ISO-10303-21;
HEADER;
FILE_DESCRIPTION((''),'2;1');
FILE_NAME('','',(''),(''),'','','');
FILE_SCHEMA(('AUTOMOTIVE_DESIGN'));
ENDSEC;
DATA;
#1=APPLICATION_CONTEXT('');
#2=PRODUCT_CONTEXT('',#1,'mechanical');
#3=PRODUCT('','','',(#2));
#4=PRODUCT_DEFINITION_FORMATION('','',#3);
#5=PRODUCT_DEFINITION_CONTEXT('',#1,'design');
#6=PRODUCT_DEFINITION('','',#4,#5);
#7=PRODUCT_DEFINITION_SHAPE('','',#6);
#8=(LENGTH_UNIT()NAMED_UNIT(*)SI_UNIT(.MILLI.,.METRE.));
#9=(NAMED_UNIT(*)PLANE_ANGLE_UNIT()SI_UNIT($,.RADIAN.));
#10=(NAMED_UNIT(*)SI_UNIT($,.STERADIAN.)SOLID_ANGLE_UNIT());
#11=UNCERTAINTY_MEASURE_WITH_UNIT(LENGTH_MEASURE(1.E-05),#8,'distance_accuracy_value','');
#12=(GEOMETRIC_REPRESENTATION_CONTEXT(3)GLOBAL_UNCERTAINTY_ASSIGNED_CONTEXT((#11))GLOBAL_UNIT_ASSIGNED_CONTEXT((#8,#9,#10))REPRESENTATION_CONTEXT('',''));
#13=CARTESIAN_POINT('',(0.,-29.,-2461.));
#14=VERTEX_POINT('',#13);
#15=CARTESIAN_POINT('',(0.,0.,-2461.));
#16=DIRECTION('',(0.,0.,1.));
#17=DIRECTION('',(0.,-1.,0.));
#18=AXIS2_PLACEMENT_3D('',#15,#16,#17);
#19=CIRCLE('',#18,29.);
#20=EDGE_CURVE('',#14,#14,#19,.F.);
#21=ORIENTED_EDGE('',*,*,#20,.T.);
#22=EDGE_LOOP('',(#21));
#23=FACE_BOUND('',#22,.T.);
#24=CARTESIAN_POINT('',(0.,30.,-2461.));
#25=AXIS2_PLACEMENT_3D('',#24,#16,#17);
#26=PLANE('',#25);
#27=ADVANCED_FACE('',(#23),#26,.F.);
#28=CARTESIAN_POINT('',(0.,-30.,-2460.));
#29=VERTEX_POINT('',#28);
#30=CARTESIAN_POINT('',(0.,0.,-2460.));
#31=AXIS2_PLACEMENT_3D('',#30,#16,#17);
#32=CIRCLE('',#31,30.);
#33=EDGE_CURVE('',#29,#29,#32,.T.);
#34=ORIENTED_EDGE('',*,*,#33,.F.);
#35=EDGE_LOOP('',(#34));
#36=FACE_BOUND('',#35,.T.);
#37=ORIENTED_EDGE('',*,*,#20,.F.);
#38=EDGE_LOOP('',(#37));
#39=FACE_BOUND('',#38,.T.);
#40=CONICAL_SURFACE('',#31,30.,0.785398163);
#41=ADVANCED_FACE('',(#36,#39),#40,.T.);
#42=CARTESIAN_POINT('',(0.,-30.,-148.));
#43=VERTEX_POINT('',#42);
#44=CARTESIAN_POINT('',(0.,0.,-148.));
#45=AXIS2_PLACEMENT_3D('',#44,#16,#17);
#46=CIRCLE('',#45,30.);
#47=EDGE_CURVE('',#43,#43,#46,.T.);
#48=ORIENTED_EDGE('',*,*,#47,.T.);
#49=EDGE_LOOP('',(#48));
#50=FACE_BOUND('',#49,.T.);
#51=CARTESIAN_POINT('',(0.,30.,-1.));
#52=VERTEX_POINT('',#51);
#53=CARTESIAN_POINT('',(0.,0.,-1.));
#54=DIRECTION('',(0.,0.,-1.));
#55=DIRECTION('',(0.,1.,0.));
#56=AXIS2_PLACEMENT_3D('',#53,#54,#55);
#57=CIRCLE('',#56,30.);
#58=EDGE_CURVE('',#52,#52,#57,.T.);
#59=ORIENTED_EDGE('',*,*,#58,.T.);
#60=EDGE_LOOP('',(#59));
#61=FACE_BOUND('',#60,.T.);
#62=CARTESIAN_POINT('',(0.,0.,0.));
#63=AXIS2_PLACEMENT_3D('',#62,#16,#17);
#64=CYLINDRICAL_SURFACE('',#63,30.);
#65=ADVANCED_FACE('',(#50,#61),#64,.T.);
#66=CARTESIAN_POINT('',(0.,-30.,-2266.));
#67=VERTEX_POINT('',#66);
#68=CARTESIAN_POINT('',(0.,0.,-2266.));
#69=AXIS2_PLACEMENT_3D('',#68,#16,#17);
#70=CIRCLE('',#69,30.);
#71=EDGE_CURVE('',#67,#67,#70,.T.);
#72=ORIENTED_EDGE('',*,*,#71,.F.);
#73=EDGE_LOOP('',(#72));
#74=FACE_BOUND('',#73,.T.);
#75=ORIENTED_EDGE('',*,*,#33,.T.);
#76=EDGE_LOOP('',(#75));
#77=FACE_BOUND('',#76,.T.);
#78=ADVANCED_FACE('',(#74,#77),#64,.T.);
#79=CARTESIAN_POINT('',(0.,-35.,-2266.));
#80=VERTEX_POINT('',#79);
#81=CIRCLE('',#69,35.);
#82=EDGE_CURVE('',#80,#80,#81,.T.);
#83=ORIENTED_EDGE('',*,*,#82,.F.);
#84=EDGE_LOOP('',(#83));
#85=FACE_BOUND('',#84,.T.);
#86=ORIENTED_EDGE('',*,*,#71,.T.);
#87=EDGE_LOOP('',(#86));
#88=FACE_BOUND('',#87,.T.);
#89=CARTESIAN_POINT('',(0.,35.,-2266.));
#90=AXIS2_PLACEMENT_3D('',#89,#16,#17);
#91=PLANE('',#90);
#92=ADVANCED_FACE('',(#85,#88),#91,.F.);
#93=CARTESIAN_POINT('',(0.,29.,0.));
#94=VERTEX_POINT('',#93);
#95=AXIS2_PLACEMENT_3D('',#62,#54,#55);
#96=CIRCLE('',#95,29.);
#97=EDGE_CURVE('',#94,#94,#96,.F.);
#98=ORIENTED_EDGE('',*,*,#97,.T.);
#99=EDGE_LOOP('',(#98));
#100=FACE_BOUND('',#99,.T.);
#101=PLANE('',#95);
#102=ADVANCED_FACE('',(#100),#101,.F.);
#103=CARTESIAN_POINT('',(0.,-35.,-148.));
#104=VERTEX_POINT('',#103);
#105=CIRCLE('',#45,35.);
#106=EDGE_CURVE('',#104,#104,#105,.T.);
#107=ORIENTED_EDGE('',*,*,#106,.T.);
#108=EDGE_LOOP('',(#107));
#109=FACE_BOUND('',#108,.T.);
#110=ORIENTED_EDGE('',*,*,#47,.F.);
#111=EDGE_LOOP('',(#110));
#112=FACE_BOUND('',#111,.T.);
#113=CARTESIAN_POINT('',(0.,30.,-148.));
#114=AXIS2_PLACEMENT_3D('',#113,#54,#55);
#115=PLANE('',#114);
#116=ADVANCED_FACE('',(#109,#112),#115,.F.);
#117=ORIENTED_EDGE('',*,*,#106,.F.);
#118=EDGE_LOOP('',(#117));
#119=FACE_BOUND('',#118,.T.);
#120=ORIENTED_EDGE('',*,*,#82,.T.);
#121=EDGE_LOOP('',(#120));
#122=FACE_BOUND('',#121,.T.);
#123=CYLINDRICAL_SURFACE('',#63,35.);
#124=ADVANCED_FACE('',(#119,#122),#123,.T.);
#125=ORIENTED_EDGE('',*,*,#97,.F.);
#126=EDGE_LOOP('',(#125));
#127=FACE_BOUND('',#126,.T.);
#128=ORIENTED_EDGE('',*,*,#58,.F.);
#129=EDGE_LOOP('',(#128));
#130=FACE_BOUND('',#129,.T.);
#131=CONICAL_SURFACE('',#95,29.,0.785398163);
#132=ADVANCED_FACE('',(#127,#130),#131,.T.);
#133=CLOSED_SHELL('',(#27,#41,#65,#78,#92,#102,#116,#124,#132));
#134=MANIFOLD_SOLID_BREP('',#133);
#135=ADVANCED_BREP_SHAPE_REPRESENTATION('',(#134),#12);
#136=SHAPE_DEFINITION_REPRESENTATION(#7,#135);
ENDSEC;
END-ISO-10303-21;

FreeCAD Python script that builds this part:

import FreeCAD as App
import Part
import Sketcher
from FreeCAD import Vector
Q = App.Units.Quantity


def edges_at(feature, points):
    """Names of the edges that pass closest to the given points."""
    edges = feature.Shape.Edges
    near = lambda p: min(range(len(edges)), key=lambda i: edges[i].distToShape(Part.Vertex(*p))[0])
    return sorted({f"Edge{near(p) + 1}" for p in points})

doc = App.newDocument("Part")
body = doc.addObject("PartDesign::Body", "Body")

# Sketch on YZ plane
sketch1 = body.newObject("Sketcher::SketchObject", "Sketch")
sketch1.AttachmentSupport = (doc.getObject("YZ_Plane"), [""])
sketch1.MapMode = "FlatFace"
sketch1.addGeometry([
    Part.LineSegment(Vector(30, 0, 0), Vector(0, 0, 0)),  # 0
    Part.LineSegment(Vector(0, 0, 0), Vector(0, -2461, 0)),  # 1
    Part.LineSegment(Vector(0, -2461, 0), Vector(30, -2461, 0)),  # 2
    Part.LineSegment(Vector(30, -2461, 0), Vector(30, -2266, 0)),  # 3
    Part.LineSegment(Vector(30, -2266, 0), Vector(35, -2266, 0)),  # 4
    Part.LineSegment(Vector(35, -2266, 0), Vector(35, -148, 0)),  # 5
    Part.LineSegment(Vector(35, -148, 0), Vector(30, -148, 0)),  # 6
    Part.LineSegment(Vector(30, -148, 0), Vector(30, 0, 0)),  # 7
], False)
sketch1.addConstraint([
    Sketcher.Constraint("Coincident", 0, 2, 1, 1),
    Sketcher.Constraint("Coincident", 1, 2, 2, 1),
    Sketcher.Constraint("Coincident", 2, 2, 3, 1),
    Sketcher.Constraint("Coincident", 3, 2, 4, 1),
    Sketcher.Constraint("Coincident", 4, 2, 5, 1),
    Sketcher.Constraint("Coincident", 5, 2, 6, 1),
    Sketcher.Constraint("Coincident", 6, 2, 7, 1),
    Sketcher.Constraint("Coincident", 7, 2, 0, 1),
    Sketcher.Constraint("Horizontal", 0),
    Sketcher.Constraint("Vertical", 1),
    Sketcher.Constraint("Horizontal", 2),
    Sketcher.Constraint("Vertical", 3),
    Sketcher.Constraint("Horizontal", 4),
    Sketcher.Constraint("Vertical", 5),
    Sketcher.Constraint("Horizontal", 6),
    Sketcher.Constraint("Vertical", 7),
    Sketcher.Constraint("Coincident", 0, 2, -1, 1),
    Sketcher.Constraint("Vertical", 3, 2, 6, 2),
    Sketcher.Constraint("DistanceX", 0, 2, 0, 1, Q("30 mm")),
    Sketcher.Constraint("DistanceX", 4, 1, 4, 2, Q("5 mm")),
    Sketcher.Constraint("DistanceY", 1, 2, 1, 1, Q("2461 mm")),
    Sketcher.Constraint("DistanceY", 3, 1, 3, 2, Q("195 mm")),
    Sketcher.Constraint("DistanceY", 5, 1, 5, 2, Q("2118 mm")),
])
revolution = body.newObject("PartDesign::Revolution", "Revolution")
revolution.Profile = sketch1
revolution.ReferenceAxis = (sketch1, ["V_Axis"])
revolution.Angle = 360
doc.recompute()

chamfer = body.newObject("PartDesign::Chamfer", "Chamfer")
chamfer.Base = (revolution, edges_at(revolution, [(0, -30, -2461)]))
chamfer.Size = 1
doc.recompute()

chamfer2 = body.newObject("PartDesign::Chamfer", "Chamfer001")
chamfer2.Base = (chamfer, edges_at(chamfer, [(0, -30, 0)]))
chamfer2.Size = 1

doc.recompute()
